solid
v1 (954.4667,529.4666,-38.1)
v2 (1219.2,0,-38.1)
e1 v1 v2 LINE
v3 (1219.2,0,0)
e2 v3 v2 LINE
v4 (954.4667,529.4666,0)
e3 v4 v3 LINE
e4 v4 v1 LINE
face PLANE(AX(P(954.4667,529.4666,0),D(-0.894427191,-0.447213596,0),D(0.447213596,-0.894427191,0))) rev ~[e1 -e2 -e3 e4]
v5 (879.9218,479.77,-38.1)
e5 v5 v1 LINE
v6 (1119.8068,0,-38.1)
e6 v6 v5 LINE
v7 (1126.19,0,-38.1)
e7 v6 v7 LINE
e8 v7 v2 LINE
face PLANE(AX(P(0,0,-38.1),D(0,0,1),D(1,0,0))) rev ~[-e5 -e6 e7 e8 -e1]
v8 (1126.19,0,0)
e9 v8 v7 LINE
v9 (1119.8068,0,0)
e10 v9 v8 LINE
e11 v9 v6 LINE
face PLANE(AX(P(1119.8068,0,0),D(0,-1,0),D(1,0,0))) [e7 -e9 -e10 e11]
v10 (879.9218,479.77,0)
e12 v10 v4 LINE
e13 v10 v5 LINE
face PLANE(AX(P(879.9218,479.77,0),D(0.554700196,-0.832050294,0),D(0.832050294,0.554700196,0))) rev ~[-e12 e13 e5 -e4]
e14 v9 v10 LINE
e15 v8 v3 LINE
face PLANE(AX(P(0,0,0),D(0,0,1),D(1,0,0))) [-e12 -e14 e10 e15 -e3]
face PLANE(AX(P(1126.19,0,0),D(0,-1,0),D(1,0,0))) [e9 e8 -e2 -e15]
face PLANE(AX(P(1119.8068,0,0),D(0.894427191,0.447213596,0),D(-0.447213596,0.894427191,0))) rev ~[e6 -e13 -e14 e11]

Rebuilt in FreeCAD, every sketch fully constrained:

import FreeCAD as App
import Part
import Sketcher
from FreeCAD import Vector
Q = App.Units.Quantity


def add_polygon(sketch, points):
    """Adds a closed chain of lines whose ends are joined by coincident constraints."""
    first, n = sketch.GeometryCount, len(points)
    for a, b in zip(points, points[1:] + points[:1]):
        sketch.addGeometry(Part.LineSegment(App.Vector(*a, 0), App.Vector(*b, 0)), False)
    for i in range(n):
        sketch.addConstraint(Sketcher.Constraint("Coincident", first + i, 2, first + (i + 1) % n, 1))

doc = App.newDocument("Part")
params = doc.addObject("Spreadsheet::Sheet", "Params")
for row, (alias, value) in enumerate([
    ("pad1_length", "1.5 in"),
], start=1):
    params.set(f"A{row}", alias)
    params.set(f"B{row}", "=" + value)
    params.setAlias(f"B{row}", alias)

body = doc.addObject("PartDesign::Body", "Body")

# Sketch on XY plane
sketch1 = doc.addObject("Sketcher::SketchObject", "Sketch")
body.addObject(sketch1)
sketch1.AttachmentSupport = (doc.XY_Plane, [""])
sketch1.MapMode = "FlatFace"
add_polygon(sketch1, [(954, 529), (880, 480), (1120, 0), (1219, 0)])  # lines 0-3
sketch1.addConstraint(Sketcher.Constraint("Horizontal", 2))
sketch1.addConstraint(Sketcher.Constraint("PointOnObject", 1, 2, -1))
sketch1.addConstraint(Sketcher.Constraint("Parallel", 1, 3))
sketch1.addConstraint(Sketcher.Constraint("DistanceX", -1, 1, 2, 2, Q("48 in")))
sketch1.addConstraint(Sketcher.Constraint("Angle", 0, Q("-146.31 deg")))
sketch1.addConstraint(Sketcher.Constraint("DistanceX", 2, 1, 2, 2, Q("99.3932 mm")))
sketch1.addConstraint(Sketcher.Constraint("DistanceX", -1, 1, 0, 2, Q("34.6426 in")))
sketch1.addConstraint(Sketcher.Constraint("Distance", 0, Q("89.5918 mm")))
pad1 = doc.addObject("PartDesign::Pad", "Pad")
body.addObject(pad1)
pad1.Profile = sketch1
pad1.setExpression("Length", "Params.pad1_length")
pad1.Reversed = True

doc.recompute()
